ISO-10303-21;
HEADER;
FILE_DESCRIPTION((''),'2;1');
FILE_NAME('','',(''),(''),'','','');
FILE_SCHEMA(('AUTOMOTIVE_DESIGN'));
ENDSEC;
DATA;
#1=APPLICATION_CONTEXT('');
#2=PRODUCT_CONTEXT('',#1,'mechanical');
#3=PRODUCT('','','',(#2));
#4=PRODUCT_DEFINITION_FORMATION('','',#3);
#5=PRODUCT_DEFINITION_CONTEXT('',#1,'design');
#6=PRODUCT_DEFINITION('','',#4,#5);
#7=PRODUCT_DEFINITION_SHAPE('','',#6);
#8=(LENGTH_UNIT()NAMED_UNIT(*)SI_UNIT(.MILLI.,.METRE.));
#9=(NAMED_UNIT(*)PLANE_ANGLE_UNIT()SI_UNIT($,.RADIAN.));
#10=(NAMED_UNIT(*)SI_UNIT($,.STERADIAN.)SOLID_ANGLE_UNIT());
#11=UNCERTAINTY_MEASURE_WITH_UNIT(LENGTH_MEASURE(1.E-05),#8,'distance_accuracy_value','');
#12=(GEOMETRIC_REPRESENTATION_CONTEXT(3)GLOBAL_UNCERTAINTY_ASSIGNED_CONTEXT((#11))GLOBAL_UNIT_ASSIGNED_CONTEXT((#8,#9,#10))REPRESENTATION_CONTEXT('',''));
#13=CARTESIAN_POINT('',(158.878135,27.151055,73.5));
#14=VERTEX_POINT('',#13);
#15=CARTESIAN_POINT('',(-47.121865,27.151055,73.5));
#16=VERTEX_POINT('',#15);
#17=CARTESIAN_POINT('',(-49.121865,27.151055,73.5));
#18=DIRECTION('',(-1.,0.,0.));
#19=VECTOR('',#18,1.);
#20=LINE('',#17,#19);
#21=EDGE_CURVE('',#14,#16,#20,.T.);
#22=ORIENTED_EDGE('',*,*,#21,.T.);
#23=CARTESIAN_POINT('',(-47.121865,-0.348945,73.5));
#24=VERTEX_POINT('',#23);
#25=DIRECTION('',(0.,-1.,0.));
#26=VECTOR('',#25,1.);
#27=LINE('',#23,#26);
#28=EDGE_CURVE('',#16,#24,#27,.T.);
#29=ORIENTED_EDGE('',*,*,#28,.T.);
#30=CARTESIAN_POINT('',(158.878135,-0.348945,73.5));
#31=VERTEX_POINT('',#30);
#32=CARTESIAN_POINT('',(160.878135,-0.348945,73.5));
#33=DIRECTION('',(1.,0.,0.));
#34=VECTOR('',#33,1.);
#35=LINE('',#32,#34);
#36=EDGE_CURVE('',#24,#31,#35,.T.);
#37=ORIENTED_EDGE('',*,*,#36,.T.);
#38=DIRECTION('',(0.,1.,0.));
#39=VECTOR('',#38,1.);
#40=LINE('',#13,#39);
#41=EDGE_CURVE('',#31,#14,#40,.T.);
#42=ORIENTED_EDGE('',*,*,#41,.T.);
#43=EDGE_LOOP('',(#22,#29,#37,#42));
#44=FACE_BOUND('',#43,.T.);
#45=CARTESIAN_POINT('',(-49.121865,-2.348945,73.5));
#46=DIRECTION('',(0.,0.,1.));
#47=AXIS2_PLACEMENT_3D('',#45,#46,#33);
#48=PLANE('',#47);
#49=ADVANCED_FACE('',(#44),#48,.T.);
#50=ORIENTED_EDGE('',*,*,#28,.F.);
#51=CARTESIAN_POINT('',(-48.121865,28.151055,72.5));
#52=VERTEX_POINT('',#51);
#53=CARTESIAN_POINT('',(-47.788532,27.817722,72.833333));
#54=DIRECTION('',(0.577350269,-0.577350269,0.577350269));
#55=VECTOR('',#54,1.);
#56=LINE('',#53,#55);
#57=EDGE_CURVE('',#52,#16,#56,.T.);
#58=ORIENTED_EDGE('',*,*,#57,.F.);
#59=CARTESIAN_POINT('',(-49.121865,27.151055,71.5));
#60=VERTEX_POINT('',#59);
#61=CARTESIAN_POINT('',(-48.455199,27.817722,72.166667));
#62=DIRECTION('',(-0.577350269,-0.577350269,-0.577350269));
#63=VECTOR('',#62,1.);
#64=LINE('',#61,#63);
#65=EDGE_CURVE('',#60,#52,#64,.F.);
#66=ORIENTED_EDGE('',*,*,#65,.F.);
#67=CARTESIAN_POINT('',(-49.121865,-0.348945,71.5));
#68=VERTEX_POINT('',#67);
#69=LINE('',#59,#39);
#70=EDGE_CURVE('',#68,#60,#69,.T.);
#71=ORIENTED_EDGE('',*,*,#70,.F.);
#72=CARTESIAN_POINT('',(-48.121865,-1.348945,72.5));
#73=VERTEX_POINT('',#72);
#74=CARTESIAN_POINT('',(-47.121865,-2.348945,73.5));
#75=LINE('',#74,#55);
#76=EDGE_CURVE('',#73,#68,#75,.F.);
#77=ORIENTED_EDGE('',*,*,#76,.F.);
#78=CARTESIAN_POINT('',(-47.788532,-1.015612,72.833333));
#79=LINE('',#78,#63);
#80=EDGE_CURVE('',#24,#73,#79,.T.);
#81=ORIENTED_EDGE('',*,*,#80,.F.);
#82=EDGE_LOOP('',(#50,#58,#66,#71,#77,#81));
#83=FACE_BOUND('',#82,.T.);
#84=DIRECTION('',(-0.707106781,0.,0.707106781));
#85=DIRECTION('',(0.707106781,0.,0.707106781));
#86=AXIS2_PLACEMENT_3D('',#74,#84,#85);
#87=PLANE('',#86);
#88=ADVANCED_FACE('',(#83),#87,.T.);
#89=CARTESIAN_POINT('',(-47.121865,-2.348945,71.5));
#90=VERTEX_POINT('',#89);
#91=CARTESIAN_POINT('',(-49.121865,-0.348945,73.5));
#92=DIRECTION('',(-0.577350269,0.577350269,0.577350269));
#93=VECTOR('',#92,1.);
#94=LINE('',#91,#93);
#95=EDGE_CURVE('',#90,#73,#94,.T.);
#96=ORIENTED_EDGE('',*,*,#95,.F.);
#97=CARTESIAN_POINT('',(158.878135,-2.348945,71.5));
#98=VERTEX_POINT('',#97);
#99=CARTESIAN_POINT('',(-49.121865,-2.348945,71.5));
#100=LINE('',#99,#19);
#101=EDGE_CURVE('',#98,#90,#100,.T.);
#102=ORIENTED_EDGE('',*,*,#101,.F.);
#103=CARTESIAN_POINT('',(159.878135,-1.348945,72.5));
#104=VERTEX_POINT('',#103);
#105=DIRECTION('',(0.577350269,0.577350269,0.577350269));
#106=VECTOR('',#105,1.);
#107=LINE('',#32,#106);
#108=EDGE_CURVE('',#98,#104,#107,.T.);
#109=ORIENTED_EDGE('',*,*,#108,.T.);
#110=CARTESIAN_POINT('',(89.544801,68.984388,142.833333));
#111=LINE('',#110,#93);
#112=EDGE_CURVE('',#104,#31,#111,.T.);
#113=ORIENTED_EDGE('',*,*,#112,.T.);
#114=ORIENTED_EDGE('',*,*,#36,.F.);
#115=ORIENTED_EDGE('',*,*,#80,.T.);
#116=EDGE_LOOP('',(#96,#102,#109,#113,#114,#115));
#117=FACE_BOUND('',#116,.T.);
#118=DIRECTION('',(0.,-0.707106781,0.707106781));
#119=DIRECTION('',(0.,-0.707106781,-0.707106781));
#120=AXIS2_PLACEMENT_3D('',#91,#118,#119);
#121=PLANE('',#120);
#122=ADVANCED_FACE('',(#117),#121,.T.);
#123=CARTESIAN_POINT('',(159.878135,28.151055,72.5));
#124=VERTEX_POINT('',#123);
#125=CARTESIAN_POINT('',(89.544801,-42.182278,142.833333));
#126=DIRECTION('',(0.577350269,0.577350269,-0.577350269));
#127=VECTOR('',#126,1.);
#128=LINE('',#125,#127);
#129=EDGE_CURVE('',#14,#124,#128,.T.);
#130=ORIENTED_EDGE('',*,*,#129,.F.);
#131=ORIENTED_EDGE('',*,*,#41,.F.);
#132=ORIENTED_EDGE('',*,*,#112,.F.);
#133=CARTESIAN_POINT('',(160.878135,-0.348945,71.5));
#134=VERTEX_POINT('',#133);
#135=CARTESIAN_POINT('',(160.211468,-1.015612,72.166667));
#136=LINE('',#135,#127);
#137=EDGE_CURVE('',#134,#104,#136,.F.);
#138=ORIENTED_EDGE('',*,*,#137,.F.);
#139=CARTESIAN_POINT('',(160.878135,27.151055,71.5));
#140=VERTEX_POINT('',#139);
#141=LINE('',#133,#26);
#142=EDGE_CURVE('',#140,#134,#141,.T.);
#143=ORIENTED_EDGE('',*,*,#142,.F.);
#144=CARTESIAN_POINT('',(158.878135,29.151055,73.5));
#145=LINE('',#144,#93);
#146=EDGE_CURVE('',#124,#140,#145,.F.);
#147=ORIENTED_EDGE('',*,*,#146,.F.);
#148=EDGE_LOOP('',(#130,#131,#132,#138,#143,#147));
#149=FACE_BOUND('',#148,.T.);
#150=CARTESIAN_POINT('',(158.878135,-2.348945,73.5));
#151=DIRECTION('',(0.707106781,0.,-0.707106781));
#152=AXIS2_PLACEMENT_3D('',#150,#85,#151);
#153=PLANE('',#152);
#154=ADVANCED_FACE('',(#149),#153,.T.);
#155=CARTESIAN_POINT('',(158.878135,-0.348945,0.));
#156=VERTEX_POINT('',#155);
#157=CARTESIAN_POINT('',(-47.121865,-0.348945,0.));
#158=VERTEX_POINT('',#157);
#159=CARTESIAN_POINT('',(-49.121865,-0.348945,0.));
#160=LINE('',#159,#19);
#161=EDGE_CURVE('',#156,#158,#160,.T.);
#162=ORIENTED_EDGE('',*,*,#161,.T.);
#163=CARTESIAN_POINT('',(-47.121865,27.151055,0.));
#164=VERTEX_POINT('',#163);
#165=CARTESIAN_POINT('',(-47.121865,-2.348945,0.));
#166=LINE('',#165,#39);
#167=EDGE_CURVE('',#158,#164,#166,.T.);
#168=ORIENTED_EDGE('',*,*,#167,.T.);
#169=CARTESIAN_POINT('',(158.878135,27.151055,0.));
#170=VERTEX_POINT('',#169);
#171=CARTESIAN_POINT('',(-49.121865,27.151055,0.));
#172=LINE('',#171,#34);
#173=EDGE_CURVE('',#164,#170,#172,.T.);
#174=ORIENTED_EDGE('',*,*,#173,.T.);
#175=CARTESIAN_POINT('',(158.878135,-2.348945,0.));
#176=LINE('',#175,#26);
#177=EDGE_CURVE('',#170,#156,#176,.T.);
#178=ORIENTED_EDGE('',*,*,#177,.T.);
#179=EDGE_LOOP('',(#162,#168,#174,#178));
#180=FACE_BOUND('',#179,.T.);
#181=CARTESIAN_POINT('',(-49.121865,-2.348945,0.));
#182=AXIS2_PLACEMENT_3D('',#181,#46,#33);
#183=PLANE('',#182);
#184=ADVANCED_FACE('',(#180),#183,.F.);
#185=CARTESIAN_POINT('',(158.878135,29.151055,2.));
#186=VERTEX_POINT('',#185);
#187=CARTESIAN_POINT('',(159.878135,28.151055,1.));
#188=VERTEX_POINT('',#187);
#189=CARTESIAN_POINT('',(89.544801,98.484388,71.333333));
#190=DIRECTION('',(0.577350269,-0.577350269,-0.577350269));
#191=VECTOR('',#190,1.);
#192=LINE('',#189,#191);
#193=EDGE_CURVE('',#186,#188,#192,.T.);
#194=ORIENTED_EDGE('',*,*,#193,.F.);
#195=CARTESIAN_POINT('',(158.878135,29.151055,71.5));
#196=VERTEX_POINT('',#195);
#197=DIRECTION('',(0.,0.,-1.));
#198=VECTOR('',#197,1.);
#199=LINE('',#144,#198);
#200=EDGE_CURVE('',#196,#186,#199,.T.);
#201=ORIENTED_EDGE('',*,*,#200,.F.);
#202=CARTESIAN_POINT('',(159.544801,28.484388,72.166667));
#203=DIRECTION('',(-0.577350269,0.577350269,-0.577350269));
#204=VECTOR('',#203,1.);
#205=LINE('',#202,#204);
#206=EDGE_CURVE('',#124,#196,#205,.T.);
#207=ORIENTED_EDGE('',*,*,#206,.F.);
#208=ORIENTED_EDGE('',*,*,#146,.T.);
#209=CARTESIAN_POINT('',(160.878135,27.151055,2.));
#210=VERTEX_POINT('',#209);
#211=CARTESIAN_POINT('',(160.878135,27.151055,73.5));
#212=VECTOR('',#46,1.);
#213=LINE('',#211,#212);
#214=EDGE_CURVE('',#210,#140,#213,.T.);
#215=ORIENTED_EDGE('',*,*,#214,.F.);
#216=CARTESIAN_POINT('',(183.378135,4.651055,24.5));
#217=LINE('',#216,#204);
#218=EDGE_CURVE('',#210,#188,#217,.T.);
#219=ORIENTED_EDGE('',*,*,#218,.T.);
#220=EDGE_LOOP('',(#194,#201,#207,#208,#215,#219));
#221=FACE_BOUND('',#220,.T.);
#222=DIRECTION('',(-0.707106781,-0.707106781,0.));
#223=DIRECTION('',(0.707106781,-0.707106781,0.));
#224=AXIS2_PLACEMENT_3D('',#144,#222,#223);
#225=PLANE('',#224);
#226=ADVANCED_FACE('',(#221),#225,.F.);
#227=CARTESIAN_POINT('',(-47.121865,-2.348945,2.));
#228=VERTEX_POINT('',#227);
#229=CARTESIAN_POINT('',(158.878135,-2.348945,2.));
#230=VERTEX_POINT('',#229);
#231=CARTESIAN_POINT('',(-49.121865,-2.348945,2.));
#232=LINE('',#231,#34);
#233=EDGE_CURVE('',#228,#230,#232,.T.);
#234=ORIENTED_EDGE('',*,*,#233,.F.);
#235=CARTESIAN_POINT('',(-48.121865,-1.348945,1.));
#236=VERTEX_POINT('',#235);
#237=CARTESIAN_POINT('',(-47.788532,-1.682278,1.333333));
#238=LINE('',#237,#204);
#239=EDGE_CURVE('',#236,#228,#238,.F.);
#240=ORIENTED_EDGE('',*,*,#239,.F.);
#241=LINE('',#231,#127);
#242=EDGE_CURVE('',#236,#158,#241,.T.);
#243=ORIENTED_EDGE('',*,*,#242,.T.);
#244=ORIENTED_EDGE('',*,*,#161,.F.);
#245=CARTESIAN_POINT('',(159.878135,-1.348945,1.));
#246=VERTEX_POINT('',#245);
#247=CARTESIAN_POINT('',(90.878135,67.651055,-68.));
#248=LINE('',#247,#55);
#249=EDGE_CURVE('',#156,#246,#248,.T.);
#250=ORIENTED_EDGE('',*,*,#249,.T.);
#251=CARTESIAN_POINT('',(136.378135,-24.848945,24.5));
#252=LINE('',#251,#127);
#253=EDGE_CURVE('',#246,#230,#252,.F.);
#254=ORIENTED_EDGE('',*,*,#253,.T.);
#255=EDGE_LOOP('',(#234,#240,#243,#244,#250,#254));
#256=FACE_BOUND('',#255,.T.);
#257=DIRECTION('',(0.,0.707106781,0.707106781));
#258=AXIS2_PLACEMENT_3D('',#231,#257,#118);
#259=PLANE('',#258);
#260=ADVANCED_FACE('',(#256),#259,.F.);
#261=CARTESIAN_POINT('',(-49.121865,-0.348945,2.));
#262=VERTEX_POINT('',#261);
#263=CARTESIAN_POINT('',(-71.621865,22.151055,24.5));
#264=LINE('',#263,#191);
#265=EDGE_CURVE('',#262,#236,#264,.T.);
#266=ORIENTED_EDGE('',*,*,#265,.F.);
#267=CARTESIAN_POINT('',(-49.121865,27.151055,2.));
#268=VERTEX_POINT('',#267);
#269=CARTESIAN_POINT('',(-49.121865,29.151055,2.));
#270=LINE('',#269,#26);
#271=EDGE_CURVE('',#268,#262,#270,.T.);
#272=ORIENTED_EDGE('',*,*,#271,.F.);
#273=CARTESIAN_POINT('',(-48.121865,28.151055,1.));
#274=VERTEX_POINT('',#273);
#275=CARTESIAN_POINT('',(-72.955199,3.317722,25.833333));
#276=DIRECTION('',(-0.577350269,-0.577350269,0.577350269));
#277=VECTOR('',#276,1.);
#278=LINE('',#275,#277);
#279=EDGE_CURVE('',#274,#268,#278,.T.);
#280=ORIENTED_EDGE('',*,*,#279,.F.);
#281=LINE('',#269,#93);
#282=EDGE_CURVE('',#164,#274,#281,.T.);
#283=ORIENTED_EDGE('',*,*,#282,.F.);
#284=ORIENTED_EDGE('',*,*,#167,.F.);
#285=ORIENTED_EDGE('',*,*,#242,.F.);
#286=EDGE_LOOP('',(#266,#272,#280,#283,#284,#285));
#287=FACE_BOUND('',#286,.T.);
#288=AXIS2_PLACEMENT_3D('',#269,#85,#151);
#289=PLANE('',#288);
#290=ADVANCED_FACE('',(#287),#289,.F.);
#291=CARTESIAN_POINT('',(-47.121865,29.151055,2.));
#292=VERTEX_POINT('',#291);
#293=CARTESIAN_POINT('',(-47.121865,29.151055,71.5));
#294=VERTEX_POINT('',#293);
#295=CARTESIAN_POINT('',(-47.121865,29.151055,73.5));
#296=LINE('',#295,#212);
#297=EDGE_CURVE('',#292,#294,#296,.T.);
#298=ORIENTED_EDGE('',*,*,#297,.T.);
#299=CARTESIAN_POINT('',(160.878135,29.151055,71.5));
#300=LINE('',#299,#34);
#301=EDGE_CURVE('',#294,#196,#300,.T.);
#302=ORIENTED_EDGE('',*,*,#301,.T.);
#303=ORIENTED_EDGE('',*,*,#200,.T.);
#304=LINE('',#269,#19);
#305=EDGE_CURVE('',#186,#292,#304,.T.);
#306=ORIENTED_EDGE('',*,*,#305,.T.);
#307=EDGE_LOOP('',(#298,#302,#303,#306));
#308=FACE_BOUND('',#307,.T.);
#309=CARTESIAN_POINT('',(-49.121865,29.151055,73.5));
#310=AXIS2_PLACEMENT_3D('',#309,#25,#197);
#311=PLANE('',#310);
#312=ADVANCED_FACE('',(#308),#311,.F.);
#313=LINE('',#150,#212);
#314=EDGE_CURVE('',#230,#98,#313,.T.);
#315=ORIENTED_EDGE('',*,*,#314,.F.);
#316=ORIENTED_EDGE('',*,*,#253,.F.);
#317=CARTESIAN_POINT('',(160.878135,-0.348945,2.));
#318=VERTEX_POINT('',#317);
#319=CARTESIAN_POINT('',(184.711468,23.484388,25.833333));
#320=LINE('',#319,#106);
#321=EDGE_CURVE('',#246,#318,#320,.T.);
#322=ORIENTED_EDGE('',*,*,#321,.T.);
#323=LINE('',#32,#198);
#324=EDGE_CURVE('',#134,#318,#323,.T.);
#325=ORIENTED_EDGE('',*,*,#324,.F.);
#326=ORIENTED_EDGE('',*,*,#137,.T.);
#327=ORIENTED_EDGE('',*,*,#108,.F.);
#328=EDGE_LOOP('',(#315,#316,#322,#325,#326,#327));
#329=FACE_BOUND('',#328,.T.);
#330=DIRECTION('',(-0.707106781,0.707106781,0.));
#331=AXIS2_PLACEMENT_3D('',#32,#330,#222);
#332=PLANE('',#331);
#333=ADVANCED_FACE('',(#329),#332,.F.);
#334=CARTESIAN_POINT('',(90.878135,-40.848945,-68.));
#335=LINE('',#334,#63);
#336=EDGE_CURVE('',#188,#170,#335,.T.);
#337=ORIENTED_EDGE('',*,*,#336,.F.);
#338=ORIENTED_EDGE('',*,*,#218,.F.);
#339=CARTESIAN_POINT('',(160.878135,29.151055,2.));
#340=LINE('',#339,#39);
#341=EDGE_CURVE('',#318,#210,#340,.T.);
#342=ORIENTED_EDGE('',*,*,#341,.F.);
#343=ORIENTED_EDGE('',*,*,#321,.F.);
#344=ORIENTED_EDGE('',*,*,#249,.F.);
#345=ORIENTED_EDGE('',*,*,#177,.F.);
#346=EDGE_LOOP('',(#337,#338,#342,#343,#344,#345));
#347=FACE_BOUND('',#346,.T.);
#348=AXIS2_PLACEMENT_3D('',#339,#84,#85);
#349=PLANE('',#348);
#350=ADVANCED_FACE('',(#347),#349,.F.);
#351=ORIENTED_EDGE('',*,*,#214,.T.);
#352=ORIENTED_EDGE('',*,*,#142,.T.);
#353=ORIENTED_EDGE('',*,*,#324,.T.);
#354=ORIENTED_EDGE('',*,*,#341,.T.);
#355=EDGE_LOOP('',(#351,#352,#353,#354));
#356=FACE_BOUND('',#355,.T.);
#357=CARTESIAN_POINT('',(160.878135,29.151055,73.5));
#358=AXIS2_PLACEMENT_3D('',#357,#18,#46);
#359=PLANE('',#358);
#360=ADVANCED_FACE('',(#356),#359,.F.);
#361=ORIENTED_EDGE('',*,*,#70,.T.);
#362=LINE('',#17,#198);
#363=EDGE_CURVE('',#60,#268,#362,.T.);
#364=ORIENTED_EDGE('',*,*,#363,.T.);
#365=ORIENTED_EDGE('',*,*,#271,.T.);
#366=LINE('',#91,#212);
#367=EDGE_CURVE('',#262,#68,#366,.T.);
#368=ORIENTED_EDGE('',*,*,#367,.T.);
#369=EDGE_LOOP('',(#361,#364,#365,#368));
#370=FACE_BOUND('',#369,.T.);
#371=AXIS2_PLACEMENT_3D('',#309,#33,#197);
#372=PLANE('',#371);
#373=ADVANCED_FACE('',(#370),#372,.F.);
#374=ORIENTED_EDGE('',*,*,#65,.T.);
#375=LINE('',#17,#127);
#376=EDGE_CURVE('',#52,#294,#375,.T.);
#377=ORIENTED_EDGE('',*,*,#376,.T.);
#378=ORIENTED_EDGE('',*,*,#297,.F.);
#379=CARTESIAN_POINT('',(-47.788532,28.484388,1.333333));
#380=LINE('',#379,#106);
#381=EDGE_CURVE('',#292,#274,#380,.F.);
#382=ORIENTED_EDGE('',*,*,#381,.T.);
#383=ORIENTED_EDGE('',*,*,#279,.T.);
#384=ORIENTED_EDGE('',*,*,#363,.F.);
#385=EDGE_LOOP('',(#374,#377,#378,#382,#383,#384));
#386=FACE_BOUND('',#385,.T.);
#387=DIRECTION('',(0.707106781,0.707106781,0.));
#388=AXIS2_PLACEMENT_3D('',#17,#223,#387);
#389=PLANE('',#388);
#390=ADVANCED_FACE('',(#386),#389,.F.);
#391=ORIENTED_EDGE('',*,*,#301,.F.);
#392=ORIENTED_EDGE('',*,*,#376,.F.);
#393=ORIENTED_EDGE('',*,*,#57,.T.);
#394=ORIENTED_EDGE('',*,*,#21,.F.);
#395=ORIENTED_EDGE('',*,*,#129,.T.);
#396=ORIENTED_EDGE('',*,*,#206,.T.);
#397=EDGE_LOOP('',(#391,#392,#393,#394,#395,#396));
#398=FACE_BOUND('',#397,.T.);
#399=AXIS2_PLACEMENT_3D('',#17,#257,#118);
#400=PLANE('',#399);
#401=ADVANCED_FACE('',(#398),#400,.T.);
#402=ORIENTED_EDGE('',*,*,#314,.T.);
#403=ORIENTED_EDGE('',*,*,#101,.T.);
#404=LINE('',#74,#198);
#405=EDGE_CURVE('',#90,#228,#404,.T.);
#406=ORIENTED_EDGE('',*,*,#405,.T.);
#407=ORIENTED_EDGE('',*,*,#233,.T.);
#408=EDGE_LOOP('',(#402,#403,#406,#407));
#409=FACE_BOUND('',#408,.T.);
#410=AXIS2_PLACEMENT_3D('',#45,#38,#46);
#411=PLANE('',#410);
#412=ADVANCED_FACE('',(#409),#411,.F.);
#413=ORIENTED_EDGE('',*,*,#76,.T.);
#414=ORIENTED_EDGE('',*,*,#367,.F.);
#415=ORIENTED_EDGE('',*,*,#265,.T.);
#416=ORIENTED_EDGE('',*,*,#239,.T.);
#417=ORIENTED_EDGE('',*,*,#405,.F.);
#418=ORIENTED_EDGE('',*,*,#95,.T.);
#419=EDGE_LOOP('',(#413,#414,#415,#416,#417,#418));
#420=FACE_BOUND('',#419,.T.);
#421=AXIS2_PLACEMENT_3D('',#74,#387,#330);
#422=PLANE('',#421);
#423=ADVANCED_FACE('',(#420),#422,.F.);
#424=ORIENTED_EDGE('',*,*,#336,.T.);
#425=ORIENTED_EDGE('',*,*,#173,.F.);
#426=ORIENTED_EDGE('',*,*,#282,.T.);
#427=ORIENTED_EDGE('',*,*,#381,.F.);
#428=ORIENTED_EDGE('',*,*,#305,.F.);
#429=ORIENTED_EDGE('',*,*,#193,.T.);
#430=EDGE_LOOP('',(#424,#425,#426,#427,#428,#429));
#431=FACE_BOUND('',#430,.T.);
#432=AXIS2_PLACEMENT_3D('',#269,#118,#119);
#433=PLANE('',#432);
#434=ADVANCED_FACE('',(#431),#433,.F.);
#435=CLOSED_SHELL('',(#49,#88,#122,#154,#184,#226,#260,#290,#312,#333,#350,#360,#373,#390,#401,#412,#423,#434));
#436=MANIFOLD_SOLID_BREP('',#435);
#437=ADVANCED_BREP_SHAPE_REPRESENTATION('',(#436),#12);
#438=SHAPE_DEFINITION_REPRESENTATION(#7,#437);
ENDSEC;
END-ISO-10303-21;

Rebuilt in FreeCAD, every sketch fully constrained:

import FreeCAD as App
import Part
import Sketcher
from FreeCAD import Vector


def edges_at(feature, points):
    """Names of the edges that pass closest to the given points."""
    edges = feature.Shape.Edges
    near = lambda p: min(range(len(edges)), key=lambda i: edges[i].distToShape(Part.Vertex(*p))[0])
    return sorted({f"Edge{near(p) + 1}" for p in points})


def add_polygon(sketch, points):
    """Adds a closed chain of lines whose ends are joined by coincident constraints."""
    first, n = sketch.GeometryCount, len(points)
    for a, b in zip(points, points[1:] + points[:1]):
        sketch.addGeometry(Part.LineSegment(App.Vector(*a, 0), App.Vector(*b, 0)), False)
    for i in range(n):
        sketch.addConstraint(Sketcher.Constraint("Coincident", first + i, 2, first + (i + 1) % n, 1))

doc = App.newDocument("Part")
body = doc.addObject("PartDesign::Body", "Body")

sketch1 = body.newObject("Sketcher::SketchObject", "Sketch")
sketch1.AttachmentSupport = (doc.getObject("XY_Plane"), [""])
sketch1.MapMode = "FlatFace"
add_polygon(sketch1, [(-49, 29), (-49, -2), (161, -2), (161, 29)])
sketch1.addConstraint([
    Sketcher.Constraint("Vertical", 0),
    Sketcher.Constraint("Horizontal", 1),
    Sketcher.Constraint("Vertical", 2),
    Sketcher.Constraint("Horizontal", 3),
    Sketcher.Constraint("DistanceX", 1, 1, 1, 2, 210.0),
    Sketcher.Constraint("DistanceY", 0, 2, 0, 1, 31.5),
    Sketcher.Constraint("DistanceX", 0, 2, -1, 1, 49.121865),
    Sketcher.Constraint("DistanceY", 0, 2, -1, 1, 2.348945),
])
pad1 = body.newObject("PartDesign::Pad", "Pad")
pad1.Profile = sketch1
pad1.Length = 73.5
doc.recompute()

chamfer = body.newObject("PartDesign::Chamfer", "Chamfer")
chamfer.Base = (pad1, edges_at(pad1, [
    (55.878, -2.349, 0),
    (55.878, -2.349, 73.5),
    (160.878, -2.349, 36.75),
    (-49.122, -2.349, 36.75),
]))
chamfer.Size = 2
doc.recompute()

chamfer2 = body.newObject("PartDesign::Chamfer", "Chamfer001")
chamfer2.Base = (chamfer, edges_at(chamfer, [
    (55.878, 29.151, 73.5),
    (55.878, 29.151, 0),
    (-49.122, 29.151, 36.75),
    (160.878, 29.151, 36.75),
]))
chamfer2.Size = 2
doc.recompute()

chamfer3 = body.newObject("PartDesign::Chamfer", "Chamfer002")
chamfer3.Base = (chamfer2, edges_at(chamfer2, [
    (160.878, 13.401, 0),
    (160.878, 13.401, 73.5),
    (-49.122, 13.401, 0),
    (-49.122, 13.401, 73.5),
]))
chamfer3.Size = 2

doc.recompute()
